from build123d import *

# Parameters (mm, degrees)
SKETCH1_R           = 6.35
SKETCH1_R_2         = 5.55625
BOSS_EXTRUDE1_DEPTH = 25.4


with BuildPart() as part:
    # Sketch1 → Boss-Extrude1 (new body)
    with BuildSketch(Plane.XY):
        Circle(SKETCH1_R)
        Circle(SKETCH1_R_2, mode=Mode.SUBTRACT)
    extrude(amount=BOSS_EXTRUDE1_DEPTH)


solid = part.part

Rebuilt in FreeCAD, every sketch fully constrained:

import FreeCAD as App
import Part
import Sketcher
Q = App.Units.Quantity

doc = App.newDocument("Part")
body = doc.addObject("PartDesign::Body", "Body")

# Sketch on XY plane
sketch1 = body.newObject("Sketcher::SketchObject", "Sketch")
sketch1.AttachmentSupport = (doc.getObject("XY_Plane"), [""])
sketch1.MapMode = "FlatFace"
sketch1.addGeometry([
    Part.Circle(App.Vector(0, 0, 0), App.Vector(0, 0, 1), 6),
    Part.Circle(App.Vector(0, 0, 0), App.Vector(0, 0, 1), 6),
], False)
sketch1.addConstraint([
    Sketcher.Constraint("Coincident", 0, 3, -1, 1),
    Sketcher.Constraint("Coincident", 1, 3, -1, 1),
    Sketcher.Constraint("Diameter", 0, Q("0.5 in")),
    Sketcher.Constraint("Diameter", 1, Q("0.4375 in")),
])
pad1 = body.newObject("PartDesign::Pad", "Pad")
pad1.Profile = sketch1
pad1.Length = Q("1 in")

doc.recompute()
